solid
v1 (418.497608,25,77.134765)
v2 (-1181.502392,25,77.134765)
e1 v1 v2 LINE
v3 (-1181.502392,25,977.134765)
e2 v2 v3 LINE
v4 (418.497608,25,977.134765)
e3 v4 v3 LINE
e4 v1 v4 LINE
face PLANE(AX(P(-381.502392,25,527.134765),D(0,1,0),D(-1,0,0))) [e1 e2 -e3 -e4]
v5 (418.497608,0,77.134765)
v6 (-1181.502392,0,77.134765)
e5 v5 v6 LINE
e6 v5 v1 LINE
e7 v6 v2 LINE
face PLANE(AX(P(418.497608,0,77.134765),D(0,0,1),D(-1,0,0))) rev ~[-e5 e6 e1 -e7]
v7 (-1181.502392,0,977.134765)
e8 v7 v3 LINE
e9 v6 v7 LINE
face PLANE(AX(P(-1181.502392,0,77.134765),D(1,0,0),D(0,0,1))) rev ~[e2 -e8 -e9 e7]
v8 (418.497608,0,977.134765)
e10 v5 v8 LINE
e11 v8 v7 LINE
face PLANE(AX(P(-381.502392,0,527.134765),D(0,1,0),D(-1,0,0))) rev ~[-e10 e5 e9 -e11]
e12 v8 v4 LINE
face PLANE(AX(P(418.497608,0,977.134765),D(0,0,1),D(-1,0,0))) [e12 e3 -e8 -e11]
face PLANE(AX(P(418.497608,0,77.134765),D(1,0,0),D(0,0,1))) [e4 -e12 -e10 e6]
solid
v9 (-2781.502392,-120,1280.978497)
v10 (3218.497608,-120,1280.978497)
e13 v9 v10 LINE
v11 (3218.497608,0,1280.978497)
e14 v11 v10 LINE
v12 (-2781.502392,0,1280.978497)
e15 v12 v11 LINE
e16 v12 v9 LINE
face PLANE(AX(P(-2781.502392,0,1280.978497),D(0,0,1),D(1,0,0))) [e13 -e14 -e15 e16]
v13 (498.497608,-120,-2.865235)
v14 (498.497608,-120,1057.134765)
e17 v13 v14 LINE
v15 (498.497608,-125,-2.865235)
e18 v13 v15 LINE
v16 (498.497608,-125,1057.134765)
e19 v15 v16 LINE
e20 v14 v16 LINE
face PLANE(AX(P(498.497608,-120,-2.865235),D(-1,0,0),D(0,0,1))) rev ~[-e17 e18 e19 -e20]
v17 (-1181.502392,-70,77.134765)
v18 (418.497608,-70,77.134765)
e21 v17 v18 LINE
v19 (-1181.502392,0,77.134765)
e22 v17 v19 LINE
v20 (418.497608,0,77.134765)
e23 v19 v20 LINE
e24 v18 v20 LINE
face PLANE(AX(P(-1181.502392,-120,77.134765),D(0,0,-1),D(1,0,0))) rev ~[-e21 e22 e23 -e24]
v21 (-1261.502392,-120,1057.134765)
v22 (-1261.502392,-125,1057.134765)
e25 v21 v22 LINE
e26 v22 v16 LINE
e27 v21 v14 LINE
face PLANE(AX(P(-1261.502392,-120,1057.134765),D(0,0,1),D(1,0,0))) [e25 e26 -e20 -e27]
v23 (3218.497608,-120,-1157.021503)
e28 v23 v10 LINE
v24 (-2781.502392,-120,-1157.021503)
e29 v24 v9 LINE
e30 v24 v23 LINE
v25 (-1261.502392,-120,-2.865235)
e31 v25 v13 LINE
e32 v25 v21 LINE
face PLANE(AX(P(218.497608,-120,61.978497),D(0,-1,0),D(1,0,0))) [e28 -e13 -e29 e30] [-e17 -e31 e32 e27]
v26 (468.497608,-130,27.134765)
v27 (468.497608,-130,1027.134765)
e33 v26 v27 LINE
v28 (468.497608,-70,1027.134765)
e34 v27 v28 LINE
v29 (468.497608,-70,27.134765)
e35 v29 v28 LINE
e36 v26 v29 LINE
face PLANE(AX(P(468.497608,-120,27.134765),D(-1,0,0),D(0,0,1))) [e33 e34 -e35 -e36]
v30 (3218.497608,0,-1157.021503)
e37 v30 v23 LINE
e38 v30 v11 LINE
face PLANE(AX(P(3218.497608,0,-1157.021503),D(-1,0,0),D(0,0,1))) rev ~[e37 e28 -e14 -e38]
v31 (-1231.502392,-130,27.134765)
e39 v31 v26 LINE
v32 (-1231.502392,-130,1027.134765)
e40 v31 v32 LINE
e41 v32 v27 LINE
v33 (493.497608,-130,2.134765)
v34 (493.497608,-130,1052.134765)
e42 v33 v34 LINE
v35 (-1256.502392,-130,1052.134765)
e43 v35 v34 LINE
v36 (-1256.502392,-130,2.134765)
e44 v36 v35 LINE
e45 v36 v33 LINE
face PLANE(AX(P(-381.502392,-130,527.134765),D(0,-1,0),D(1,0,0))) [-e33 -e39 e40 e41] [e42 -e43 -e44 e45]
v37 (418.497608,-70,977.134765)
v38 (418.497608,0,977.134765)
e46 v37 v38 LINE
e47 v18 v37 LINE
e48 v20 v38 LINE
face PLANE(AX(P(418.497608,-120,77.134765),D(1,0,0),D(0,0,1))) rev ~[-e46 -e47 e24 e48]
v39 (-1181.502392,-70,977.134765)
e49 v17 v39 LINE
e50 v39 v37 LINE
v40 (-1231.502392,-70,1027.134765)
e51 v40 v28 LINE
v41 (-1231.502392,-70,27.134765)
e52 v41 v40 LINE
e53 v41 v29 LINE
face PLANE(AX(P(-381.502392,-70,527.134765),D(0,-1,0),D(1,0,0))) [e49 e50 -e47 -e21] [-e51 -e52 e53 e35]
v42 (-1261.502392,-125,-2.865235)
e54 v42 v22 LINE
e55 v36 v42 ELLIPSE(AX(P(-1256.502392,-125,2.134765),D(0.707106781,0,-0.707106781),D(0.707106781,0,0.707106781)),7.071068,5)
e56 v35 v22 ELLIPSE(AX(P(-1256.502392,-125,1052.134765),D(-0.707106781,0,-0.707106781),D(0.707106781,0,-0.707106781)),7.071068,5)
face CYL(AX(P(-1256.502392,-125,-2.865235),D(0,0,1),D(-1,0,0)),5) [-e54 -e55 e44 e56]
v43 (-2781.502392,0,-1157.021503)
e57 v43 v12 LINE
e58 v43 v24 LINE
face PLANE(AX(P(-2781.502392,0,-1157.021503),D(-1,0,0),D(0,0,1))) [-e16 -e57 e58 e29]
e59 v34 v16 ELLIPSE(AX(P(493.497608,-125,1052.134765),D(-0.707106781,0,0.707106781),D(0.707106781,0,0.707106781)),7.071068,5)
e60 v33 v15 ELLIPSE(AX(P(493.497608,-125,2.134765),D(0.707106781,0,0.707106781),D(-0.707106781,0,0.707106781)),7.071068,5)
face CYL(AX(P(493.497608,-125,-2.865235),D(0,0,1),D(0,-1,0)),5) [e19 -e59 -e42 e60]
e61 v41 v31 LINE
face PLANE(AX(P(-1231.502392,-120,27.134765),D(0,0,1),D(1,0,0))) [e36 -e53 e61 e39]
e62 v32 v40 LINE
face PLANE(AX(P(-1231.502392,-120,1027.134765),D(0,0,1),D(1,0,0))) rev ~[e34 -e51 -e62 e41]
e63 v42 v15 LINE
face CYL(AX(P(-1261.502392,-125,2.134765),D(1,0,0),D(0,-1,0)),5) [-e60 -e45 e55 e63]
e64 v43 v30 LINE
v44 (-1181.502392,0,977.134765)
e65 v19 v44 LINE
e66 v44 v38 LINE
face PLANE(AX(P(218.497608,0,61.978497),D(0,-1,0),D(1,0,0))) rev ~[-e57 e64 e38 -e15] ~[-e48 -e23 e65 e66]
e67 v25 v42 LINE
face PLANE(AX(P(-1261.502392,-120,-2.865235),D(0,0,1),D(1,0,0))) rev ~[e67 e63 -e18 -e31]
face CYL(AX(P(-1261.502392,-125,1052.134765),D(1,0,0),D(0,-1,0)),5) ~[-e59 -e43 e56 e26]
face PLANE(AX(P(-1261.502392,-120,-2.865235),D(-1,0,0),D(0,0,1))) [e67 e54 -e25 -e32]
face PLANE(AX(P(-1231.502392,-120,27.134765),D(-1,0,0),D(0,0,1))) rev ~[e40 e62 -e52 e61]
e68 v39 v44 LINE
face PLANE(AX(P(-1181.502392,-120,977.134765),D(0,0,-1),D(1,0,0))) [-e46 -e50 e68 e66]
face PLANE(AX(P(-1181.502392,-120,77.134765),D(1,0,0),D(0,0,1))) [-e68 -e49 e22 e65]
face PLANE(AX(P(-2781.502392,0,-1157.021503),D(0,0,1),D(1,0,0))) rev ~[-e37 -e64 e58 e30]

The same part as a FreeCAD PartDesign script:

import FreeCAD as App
import Part
import Sketcher
Q = App.Units.Quantity


def edges_at(feature, points):
    """Names of the edges that pass closest to the given points."""
    edges = feature.Shape.Edges
    near = lambda p: min(range(len(edges)), key=lambda i: edges[i].distToShape(Part.Vertex(*p))[0])
    return sorted({f"Edge{near(p) + 1}" for p in points})


def add_polygon(sketch, points):
    """Adds a closed chain of lines whose ends are joined by coincident constraints."""
    first, n = sketch.GeometryCount, len(points)
    for a, b in zip(points, points[1:] + points[:1]):
        sketch.addGeometry(Part.LineSegment(App.Vector(*a, 0), App.Vector(*b, 0)), False)
    for i in range(n):
        sketch.addConstraint(Sketcher.Constraint("Coincident", first + i, 2, first + (i + 1) % n, 1))

doc = App.newDocument("Part")
params = doc.addObject("Spreadsheet::Sheet", "Params")
for row, (alias, value) in enumerate([
    ("sketch1_width", "6000 mm"),
    ("sketch1_height", "2438 mm"),
    ("pad1_length", "120 mm"),
    ("sketch2_width", "1600 mm"),
    ("sketch2_height", "900 mm"),
    ("sketch3_width", "1700 mm"),
    ("sketch3_width2", "1600 mm"),
    ("sketch3_height", "1000 mm"),
    ("sketch3_height2", "900 mm"),
    ("pocket2_length", "50 mm"),
    ("sketch4_width", "1760 mm"),
    ("sketch4_width2", "1700 mm"),
    ("sketch4_height", "1060 mm"),
    ("sketch4_height2", "1000 mm"),
    ("pad2_length", "10 mm"),
    ("fillet_radius", "5 mm"),
    ("sketch5_width", "1600 mm"),
    ("sketch5_height", "900 mm"),
    ("pad3_length", "25 mm"),
], start=1):
    params.set(f"A{row}", alias)
    params.set(f"B{row}", "=" + value)
    params.setAlias(f"B{row}", alias)

body = doc.addObject("PartDesign::Body", "Body")

# Sketch on XZ plane
sketch1 = body.newObject("Sketcher::SketchObject", "Sketch")
sketch1.AttachmentSupport = (doc.getObject("XZ_Plane"), [""])
sketch1.MapMode = "FlatFace"
add_polygon(sketch1, [(-2782, 1281), (-2782, -1157), (3218, -1157), (3218, 1281)])  # lines 0-3
sketch1.addConstraint(Sketcher.Constraint("Vertical", 0))
sketch1.addConstraint(Sketcher.Constraint("Horizontal", 1))
sketch1.addConstraint(Sketcher.Constraint("Vertical", 2))
sketch1.addConstraint(Sketcher.Constraint("Horizontal", 3))
sketch1.addConstraint(Sketcher.Constraint("DistanceX", 1, 1, 1, 2, Q("6000 mm")))
sketch1.addConstraint(Sketcher.Constraint("DistanceY", 0, 2, 0, 1, Q("2438 mm")))
sketch1.addConstraint(Sketcher.Constraint("DistanceX", 0, 2, -1, 1, Q("2781.502392 mm")))
sketch1.addConstraint(Sketcher.Constraint("DistanceY", 0, 2, -1, 1, Q("1157.021503 mm")))
sketch1.setExpression("Constraints[8]", "Params.sketch1_width")
sketch1.setExpression("Constraints[9]", "Params.sketch1_height")
pad1 = body.newObject("PartDesign::Pad", "Pad")
pad1.Profile = sketch1
pad1.setExpression("Length", "Params.pad1_length")

# Sketch on XZ plane
sketch2 = body.newObject("Sketcher::SketchObject", "Sketch001")
sketch2.AttachmentSupport = (doc.getObject("XZ_Plane"), [""])
sketch2.MapMode = "FlatFace"
sketch2.AttachmentOffset = App.Placement(App.Vector(0, 0, 120), App.Rotation())
add_polygon(sketch2, [(-1182, 977), (-1182, 77), (418, 77), (418, 977)])  # lines 0-3
sketch2.addConstraint(Sketcher.Constraint("Vertical", 0))
sketch2.addConstraint(Sketcher.Constraint("Horizontal", 1))
sketch2.addConstraint(Sketcher.Constraint("Vertical", 2))
sketch2.addConstraint(Sketcher.Constraint("Horizontal", 3))
sketch2.addConstraint(Sketcher.Constraint("DistanceX", 1, 1, 1, 2, Q("1600 mm")))
sketch2.addConstraint(Sketcher.Constraint("DistanceY", 0, 2, 0, 1, Q("900 mm")))
sketch2.addConstraint(Sketcher.Constraint("DistanceX", 0, 2, -1, 1, Q("1181.502392 mm")))
sketch2.addConstraint(Sketcher.Constraint("DistanceY", -1, 1, 0, 2, Q("77.134765 mm")))
sketch2.setExpression("Constraints[8]", "Params.sketch2_width")
sketch2.setExpression("Constraints[9]", "Params.sketch2_height")
pocket1 = body.newObject("PartDesign::Pocket", "Pocket")
pocket1.Profile = sketch2
pocket1.Type = "ThroughAll"

# Sketch on XZ plane
sketch3 = body.newObject("Sketcher::SketchObject", "Sketch002")
sketch3.AttachmentSupport = (doc.getObject("XZ_Plane"), [""])
sketch3.MapMode = "FlatFace"
sketch3.AttachmentOffset = App.Placement(App.Vector(0, 0, 120), App.Rotation())
add_polygon(sketch3, [(-1232, 1027), (-1232, 27), (468, 27), (468, 1027)])  # lines 0-3
add_polygon(sketch3, [(418, 77), (-1182, 77), (-1182, 977), (418, 977)])  # lines 4-7
sketch3.addConstraint(Sketcher.Constraint("Vertical", 0))
sketch3.addConstraint(Sketcher.Constraint("Horizontal", 1))
sketch3.addConstraint(Sketcher.Constraint("Vertical", 2))
sketch3.addConstraint(Sketcher.Constraint("Horizontal", 3))
sketch3.addConstraint(Sketcher.Constraint("Horizontal", 4))
sketch3.addConstraint(Sketcher.Constraint("Vertical", 5))
sketch3.addConstraint(Sketcher.Constraint("Horizontal", 6))
sketch3.addConstraint(Sketcher.Constraint("Vertical", 7))
sketch3.addConstraint(Sketcher.Constraint("DistanceX", 1, 1, 1, 2, Q("1700 mm")))
sketch3.addConstraint(Sketcher.Constraint("DistanceX", 4, 2, 4, 1, Q("1600 mm")))
sketch3.addConstraint(Sketcher.Constraint("DistanceY", 0, 2, 0, 1, Q("1000 mm")))
sketch3.addConstraint(Sketcher.Constraint("DistanceY", 5, 1, 5, 2, Q("900 mm")))
sketch3.addConstraint(Sketcher.Constraint("DistanceX", 0, 2, 4, 2, Q("50 mm")))
sketch3.addConstraint(Sketcher.Constraint("DistanceY", 0, 2, 4, 2, Q("50 mm")))
sketch3.addConstraint(Sketcher.Constraint("DistanceX", 0, 2, -1, 1, Q("1231.502392 mm")))
sketch3.addConstraint(Sketcher.Constraint("DistanceY", -1, 1, 0, 2, Q("27.134765 mm")))
sketch3.setExpression("Constraints[16]", "Params.sketch3_width")
sketch3.setExpression("Constraints[17]", "Params.sketch3_width2")
sketch3.setExpression("Constraints[18]", "Params.sketch3_height")
sketch3.setExpression("Constraints[19]", "Params.sketch3_height2")
pocket2 = body.newObject("PartDesign::Pocket", "Pocket001")
pocket2.Profile = sketch3
pocket2.setExpression("Length", "Params.pocket2_length")

# Sketch on XZ plane
sketch4 = body.newObject("Sketcher::SketchObject", "Sketch003")
sketch4.AttachmentSupport = (doc.getObject("XZ_Plane"), [""])
sketch4.MapMode = "FlatFace"
sketch4.AttachmentOffset = App.Placement(App.Vector(0, 0, 120), App.Rotation())
add_polygon(sketch4, [(-1262, 1057), (-1262, -3), (498, -3), (498, 1057)])  # lines 0-3
add_polygon(sketch4, [(468, 27), (-1232, 27), (-1232, 1027), (468, 1027)])  # lines 4-7
sketch4.addConstraint(Sketcher.Constraint("Vertical", 0))
sketch4.addConstraint(Sketcher.Constraint("Horizontal", 1))
sketch4.addConstraint(Sketcher.Constraint("Vertical", 2))
sketch4.addConstraint(Sketcher.Constraint("Horizontal", 3))
sketch4.addConstraint(Sketcher.Constraint("Horizontal", 4))
sketch4.addConstraint(Sketcher.Constraint("Vertical", 5))
sketch4.addConstraint(Sketcher.Constraint("Horizontal", 6))
sketch4.addConstraint(Sketcher.Constraint("Vertical", 7))
sketch4.addConstraint(Sketcher.Constraint("DistanceX", 1, 1, 1, 2, Q("1760 mm")))
sketch4.addConstraint(Sketcher.Constraint("DistanceX", 4, 2, 4, 1, Q("1700 mm")))
sketch4.addConstraint(Sketcher.Constraint("DistanceY", 0, 2, 0, 1, Q("1060 mm")))
sketch4.addConstraint(Sketcher.Constraint("DistanceY", 5, 1, 5, 2, Q("1000 mm")))
sketch4.addConstraint(Sketcher.Constraint("DistanceX", 0, 2, 4, 2, Q("30 mm")))
sketch4.addConstraint(Sketcher.Constraint("DistanceY", 0, 2, 4, 2, Q("30 mm")))
sketch4.addConstraint(Sketcher.Constraint("DistanceX", 0, 2, -1, 1, Q("1261.502392 mm")))
sketch4.addConstraint(Sketcher.Constraint("DistanceY", 0, 2, -1, 1, Q("2.865235 mm")))
sketch4.setExpression("Constraints[16]", "Params.sketch4_width")
sketch4.setExpression("Constraints[17]", "Params.sketch4_width2")
sketch4.setExpression("Constraints[18]", "Params.sketch4_height")
sketch4.setExpression("Constraints[19]", "Params.sketch4_height2")
pad2 = body.newObject("PartDesign::Pad", "Pad001")
pad2.Profile = sketch4
pad2.setExpression("Length", "Params.pad2_length")
doc.recompute()

fillet = body.newObject("PartDesign::Fillet", "Fillet")
fillet.Base = (pad2, edges_at(pad2, [
    (-381.502, -130, 1057.135),
    (498.498, -130, 527.135),
    (-381.502, -130, -2.865),
    (-1261.502, -130, 527.135),
]))
fillet.setExpression("Radius", "Params.fillet_radius")
body2 = doc.addObject("PartDesign::Body", "Body001")

# Sketch on XZ plane
sketch5 = body2.newObject("Sketcher::SketchObject", "Sketch004")
sketch5.AttachmentSupport = (doc.getObject("XZ_Plane001"), [""])
sketch5.MapMode = "FlatFace"
add_polygon(sketch5, [(418, 977), (418, 77), (-1182, 77), (-1182, 977)])  # lines 0-3
sketch5.addConstraint(Sketcher.Constraint("Vertical", 0))
sketch5.addConstraint(Sketcher.Constraint("Horizontal", 1))
sketch5.addConstraint(Sketcher.Constraint("Vertical", 2))
sketch5.addConstraint(Sketcher.Constraint("Horizontal", 3))
sketch5.addConstraint(Sketcher.Constraint("DistanceX", 1, 2, 1, 1, Q("1600 mm")))
sketch5.addConstraint(Sketcher.Constraint("DistanceY", 0, 2, 0, 1, Q("900 mm")))
sketch5.addConstraint(Sketcher.Constraint("DistanceX", -1, 1, 0, 2, Q("418.497608 mm")))
sketch5.addConstraint(Sketcher.Constraint("DistanceY", -1, 1, 0, 2, Q("77.134765 mm")))
sketch5.setExpression("Constraints[8]", "Params.sketch5_width")
sketch5.setExpression("Constraints[9]", "Params.sketch5_height")
pad3 = body2.newObject("PartDesign::Pad", "Pad002")
pad3.Profile = sketch5
pad3.setExpression("Length", "Params.pad3_length")
pad3.Reversed = True

doc.recompute()
